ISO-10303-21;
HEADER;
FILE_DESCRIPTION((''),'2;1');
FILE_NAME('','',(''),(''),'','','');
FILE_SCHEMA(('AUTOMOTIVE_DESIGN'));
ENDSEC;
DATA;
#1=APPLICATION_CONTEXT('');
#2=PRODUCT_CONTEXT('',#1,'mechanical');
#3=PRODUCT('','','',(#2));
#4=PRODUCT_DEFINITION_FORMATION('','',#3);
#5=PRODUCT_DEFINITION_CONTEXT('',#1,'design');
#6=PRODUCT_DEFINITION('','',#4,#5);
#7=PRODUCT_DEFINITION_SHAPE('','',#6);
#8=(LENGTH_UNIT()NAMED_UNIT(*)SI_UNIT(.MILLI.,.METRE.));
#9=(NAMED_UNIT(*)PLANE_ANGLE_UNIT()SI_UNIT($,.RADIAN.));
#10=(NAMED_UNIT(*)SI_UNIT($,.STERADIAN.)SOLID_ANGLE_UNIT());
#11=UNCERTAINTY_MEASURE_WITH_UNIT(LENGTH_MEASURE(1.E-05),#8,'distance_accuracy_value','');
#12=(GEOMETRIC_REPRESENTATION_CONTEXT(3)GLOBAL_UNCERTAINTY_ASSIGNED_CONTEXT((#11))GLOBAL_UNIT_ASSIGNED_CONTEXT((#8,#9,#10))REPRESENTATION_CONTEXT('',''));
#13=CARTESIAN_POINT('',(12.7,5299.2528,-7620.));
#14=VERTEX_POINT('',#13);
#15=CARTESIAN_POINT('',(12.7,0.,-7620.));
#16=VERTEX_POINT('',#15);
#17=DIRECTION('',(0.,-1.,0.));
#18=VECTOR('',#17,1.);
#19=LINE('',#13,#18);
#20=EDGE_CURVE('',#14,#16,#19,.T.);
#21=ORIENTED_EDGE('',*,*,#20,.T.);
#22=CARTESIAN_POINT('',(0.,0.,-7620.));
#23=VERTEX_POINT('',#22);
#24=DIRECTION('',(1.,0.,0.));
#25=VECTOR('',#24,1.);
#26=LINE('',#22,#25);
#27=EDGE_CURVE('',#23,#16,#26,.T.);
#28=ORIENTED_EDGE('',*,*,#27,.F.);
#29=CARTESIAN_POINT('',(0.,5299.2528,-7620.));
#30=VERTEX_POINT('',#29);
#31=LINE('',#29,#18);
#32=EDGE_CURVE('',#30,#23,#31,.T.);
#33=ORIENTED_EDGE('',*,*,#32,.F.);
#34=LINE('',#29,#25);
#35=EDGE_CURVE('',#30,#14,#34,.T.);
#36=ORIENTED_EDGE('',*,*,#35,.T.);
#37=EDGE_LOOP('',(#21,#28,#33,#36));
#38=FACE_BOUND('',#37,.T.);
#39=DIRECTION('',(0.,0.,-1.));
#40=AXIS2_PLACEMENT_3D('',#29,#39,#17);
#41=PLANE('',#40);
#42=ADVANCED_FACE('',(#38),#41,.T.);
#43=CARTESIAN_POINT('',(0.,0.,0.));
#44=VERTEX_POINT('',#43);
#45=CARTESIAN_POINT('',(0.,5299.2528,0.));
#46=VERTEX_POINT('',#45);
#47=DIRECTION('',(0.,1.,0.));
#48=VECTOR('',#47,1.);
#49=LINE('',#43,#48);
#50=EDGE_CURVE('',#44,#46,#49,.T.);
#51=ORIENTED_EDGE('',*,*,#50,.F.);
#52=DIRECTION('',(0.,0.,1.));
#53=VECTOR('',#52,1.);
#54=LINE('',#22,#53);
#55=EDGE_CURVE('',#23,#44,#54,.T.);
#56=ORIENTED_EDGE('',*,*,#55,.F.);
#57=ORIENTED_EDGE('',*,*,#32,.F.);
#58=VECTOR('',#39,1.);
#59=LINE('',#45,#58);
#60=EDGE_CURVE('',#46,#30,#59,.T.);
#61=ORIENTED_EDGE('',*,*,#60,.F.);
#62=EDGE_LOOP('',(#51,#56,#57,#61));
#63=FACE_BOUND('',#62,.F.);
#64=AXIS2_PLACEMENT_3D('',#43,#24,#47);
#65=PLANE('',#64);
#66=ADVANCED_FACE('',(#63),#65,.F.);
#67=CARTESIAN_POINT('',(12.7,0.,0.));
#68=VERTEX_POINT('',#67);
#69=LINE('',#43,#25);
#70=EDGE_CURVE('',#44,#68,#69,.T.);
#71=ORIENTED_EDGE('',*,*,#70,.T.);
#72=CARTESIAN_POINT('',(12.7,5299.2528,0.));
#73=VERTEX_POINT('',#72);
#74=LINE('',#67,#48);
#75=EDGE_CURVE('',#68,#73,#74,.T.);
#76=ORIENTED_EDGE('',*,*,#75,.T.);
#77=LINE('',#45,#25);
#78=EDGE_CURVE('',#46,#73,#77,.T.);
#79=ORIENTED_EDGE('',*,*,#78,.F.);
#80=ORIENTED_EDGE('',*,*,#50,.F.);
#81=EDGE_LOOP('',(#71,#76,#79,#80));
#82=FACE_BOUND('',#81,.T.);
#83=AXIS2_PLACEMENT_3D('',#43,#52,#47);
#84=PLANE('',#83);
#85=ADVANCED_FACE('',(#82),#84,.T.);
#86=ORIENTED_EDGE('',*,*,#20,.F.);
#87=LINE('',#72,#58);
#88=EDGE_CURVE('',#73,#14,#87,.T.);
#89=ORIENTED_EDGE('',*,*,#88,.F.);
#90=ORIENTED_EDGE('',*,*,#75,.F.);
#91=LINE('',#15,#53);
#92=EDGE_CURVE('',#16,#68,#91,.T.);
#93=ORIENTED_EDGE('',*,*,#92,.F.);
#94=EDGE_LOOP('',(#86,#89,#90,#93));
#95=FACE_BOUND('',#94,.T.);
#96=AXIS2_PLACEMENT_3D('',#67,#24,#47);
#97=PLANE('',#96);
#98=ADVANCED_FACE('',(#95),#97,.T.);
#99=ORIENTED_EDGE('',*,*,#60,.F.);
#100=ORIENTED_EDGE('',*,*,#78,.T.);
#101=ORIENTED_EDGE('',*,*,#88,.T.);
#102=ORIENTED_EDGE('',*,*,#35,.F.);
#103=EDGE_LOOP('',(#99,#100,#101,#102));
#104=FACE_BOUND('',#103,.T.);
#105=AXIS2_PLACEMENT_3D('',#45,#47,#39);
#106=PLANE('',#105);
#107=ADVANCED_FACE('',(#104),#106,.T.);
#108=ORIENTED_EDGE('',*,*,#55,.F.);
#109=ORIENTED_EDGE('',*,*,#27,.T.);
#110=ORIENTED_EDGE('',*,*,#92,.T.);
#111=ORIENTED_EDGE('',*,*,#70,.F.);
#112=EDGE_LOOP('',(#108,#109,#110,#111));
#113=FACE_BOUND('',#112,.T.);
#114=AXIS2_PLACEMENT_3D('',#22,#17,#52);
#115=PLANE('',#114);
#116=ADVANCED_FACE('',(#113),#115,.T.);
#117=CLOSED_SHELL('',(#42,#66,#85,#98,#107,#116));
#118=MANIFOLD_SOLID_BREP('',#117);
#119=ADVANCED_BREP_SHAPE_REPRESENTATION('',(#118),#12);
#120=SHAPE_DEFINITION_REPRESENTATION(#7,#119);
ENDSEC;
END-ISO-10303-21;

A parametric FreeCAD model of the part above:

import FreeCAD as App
import Part
import Sketcher
from FreeCAD import Vector
Q = App.Units.Quantity

doc = App.newDocument("Part")
params = doc.addObject("Spreadsheet::Sheet", "Params")
for row, (alias, value) in enumerate([
    ("sketch1_height", "300 in"),
    ("sketch1_width", "208.632 in"),
    ("pad1_length", "0.5 in"),
], start=1):
    params.set(f"A{row}", alias)
    params.set(f"B{row}", "=" + value)
    params.setAlias(f"B{row}", alias)

body = doc.addObject("PartDesign::Body", "Body")

# Sketch on YZ plane
sketch1 = body.newObject("Sketcher::SketchObject", "Sketch")
sketch1.AttachmentSupport = (doc.getObject("YZ_Plane"), [""])
sketch1.MapMode = "FlatFace"
sketch1.addGeometry([
    Part.LineSegment(Vector(5299, 0, 0), Vector(0, 0, 0)),
    Part.LineSegment(Vector(0, 0, 0), Vector(0, -7620, 0)),
    Part.LineSegment(Vector(0, -7620, 0), Vector(5299, -7620, 0)),
    Part.LineSegment(Vector(5299, -7620, 0), Vector(5299, 0, 0)),
], False)
sketch1.addConstraint([
    Sketcher.Constraint("Coincident", 0, 2, 1, 1),
    Sketcher.Constraint("Coincident", 1, 2, 2, 1),
    Sketcher.Constraint("Coincident", 2, 2, 3, 1),
    Sketcher.Constraint("Coincident", 3, 2, 0, 1),
    Sketcher.Constraint("Horizontal", 0),
    Sketcher.Constraint("Vertical", 1),
    Sketcher.Constraint("Horizontal", 2),
    Sketcher.Constraint("Vertical", 3),
    Sketcher.Constraint("Coincident", 0, 2, -1, 1),
    Sketcher.Constraint("DistanceY", 1, 2, 1, 1, Q("300 in")),
    Sketcher.Constraint("DistanceX", 0, 2, 0, 1, Q("208.632 in")),
])
sketch1.setExpression("Constraints[9]", "Params.sketch1_height")
sketch1.setExpression("Constraints[10]", "Params.sketch1_width")
pad1 = body.newObject("PartDesign::Pad", "Pad")
pad1.Profile = sketch1
pad1.setExpression("Length", "Params.pad1_length")

doc.recompute()
